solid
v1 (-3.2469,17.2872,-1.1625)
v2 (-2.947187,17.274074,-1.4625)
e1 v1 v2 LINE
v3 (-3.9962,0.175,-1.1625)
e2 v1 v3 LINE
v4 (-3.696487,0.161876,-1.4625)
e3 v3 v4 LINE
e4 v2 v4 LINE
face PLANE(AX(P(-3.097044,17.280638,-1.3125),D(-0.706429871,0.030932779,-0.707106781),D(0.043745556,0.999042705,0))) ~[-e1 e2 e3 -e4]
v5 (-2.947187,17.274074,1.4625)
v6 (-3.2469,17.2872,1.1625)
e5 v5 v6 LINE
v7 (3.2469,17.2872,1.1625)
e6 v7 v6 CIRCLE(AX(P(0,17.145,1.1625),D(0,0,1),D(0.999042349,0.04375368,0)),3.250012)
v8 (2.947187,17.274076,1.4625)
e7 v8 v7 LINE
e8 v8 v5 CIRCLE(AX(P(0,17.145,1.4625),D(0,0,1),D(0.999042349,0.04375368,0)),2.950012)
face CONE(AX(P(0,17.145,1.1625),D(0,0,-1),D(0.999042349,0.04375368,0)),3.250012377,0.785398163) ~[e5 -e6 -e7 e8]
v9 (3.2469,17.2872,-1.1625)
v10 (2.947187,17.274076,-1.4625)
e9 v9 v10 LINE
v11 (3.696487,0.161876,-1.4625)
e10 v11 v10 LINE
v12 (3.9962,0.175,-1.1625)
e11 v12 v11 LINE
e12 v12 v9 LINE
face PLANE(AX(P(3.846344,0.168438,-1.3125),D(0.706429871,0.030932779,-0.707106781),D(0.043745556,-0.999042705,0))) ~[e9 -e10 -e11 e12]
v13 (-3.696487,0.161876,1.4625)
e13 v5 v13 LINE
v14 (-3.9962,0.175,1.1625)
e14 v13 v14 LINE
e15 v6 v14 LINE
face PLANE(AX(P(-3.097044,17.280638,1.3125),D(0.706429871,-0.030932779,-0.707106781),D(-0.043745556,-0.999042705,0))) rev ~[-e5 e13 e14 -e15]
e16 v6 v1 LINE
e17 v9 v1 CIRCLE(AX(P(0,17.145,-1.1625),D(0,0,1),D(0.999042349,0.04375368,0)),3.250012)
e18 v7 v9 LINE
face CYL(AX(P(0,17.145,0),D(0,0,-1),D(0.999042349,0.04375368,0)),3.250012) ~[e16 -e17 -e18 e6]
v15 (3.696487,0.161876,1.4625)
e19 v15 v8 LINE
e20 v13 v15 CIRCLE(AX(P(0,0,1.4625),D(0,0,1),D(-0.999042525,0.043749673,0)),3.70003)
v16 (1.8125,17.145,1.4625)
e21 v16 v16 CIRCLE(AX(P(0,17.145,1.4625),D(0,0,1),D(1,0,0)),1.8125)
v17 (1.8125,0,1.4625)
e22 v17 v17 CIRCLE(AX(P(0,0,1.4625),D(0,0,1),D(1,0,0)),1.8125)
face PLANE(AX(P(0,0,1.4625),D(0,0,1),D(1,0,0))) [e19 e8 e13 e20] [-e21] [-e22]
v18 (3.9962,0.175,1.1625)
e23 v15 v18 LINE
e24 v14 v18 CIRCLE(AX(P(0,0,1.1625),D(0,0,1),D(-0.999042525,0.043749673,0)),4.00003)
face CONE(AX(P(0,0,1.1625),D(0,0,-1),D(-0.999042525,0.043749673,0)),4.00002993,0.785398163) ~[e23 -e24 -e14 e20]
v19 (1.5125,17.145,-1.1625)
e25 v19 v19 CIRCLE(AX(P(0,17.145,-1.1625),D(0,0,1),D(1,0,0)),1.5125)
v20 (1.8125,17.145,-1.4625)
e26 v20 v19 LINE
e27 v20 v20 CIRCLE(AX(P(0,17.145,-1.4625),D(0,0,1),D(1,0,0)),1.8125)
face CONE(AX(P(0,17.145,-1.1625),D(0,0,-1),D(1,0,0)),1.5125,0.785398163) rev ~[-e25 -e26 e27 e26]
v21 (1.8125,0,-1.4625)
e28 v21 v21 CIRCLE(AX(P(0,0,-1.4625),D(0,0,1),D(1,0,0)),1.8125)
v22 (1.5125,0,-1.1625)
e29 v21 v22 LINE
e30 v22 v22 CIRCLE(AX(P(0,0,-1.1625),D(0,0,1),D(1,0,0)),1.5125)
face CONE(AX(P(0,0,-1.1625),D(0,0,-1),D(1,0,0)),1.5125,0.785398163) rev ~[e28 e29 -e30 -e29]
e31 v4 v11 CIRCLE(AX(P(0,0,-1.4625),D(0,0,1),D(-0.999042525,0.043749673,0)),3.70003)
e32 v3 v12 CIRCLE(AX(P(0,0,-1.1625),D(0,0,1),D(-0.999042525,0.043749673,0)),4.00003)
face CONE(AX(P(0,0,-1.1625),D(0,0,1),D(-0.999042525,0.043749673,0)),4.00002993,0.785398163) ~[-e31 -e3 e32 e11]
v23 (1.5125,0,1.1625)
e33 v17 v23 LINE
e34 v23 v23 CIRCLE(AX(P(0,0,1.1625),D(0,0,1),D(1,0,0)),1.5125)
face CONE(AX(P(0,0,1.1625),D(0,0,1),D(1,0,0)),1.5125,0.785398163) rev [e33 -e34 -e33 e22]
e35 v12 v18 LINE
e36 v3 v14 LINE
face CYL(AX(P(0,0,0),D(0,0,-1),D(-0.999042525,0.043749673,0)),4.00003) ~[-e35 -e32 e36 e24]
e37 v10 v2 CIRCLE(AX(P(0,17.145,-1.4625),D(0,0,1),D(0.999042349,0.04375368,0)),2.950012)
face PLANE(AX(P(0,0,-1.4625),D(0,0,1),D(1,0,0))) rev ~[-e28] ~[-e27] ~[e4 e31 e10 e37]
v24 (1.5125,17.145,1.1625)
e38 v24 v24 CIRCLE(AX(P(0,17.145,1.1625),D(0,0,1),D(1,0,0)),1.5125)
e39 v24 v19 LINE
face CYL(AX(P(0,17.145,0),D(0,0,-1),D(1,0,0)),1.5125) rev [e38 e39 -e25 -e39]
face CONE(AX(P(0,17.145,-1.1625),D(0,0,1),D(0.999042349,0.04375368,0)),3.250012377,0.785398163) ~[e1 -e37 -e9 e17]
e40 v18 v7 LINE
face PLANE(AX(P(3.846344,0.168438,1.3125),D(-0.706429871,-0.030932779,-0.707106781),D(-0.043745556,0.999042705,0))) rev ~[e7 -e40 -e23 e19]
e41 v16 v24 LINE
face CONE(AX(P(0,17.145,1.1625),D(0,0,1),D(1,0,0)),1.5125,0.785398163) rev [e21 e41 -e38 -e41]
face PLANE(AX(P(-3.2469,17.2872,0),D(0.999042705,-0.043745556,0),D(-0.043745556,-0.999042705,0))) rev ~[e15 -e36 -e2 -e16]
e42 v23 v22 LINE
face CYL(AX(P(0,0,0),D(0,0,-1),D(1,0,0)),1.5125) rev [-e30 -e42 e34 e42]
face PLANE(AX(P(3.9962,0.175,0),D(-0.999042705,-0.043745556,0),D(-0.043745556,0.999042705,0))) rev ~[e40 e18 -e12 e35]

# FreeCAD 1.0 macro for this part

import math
import FreeCAD as App
import Part
import Sketcher


def edges_at(feature, points):
    """Names of the edges that pass closest to the given points."""
    edges = feature.Shape.Edges
    near = lambda p: min(range(len(edges)), key=lambda i: edges[i].distToShape(Part.Vertex(*p))[0])
    return sorted({f"Edge{near(p) + 1}" for p in points})

doc = App.newDocument("Part")
body = doc.addObject("PartDesign::Body", "Body")

sketch1 = body.newObject("Sketcher::SketchObject", "Sketch")
sketch1.AttachmentSupport = (doc.getObject("XY_Plane"), [""])
sketch1.MapMode = "FlatFace"
sketch1.addGeometry([
    Part.LineSegment(App.Vector(-3.2, 17.3, 0), App.Vector(-4, 0.2, 0)),
    Part.ArcOfCircle(Part.Circle(App.Vector(0, 0, 0), App.Vector(0, 0, 1), 4), math.radians(177), math.radians(363)),
    Part.LineSegment(App.Vector(4, 0.2, 0), App.Vector(3.2, 17.3, 0)),
    Part.ArcOfCircle(Part.Circle(App.Vector(0, 17.1, 0), App.Vector(0, 0, 1), 3.3), math.radians(3), math.radians(177)),
    Part.Circle(App.Vector(0, 0, 0), App.Vector(0, 0, 1), 1.5),
    Part.Circle(App.Vector(0, 17.1, 0), App.Vector(0, 0, 1), 1.5),
], False)
sketch1.addConstraint([
    Sketcher.Constraint("Tangent", 0, 2, 1, 1),
    Sketcher.Constraint("Tangent", 1, 2, 2, 1),
    Sketcher.Constraint("Tangent", 2, 2, 3, 1),
    Sketcher.Constraint("Tangent", 3, 2, 0, 1),
    Sketcher.Constraint("Coincident", 1, 3, -1, 1),
    Sketcher.Constraint("Coincident", 4, 3, -1, 1),
    Sketcher.Constraint("Coincident", 5, 3, 3, 3),
    Sketcher.Constraint("Equal", 4, 5),
    Sketcher.Constraint("PointOnObject", 3, 3, -2),
    Sketcher.Constraint("Radius", 1, 4.0),
    Sketcher.Constraint("Radius", 3, 3.25),
    Sketcher.Constraint("Diameter", 4, 3.025),
    Sketcher.Constraint("DistanceY", -1, 1, 3, 3, 17.145),
])
pad1 = body.newObject("PartDesign::Pad", "Pad")
pad1.Profile = sketch1
pad1.Length = 2.925
pad1.Midplane = True
doc.recompute()

chamfer = body.newObject("PartDesign::Chamfer", "Chamfer")
chamfer.Base = (pad1, edges_at(pad1, [
    (3.622, 8.731, -1.462),
    (0, -4, -1.462),
    (-3.622, 8.731, -1.462),
    (0, 20.395, -1.462),
    (-1.512, 17.145, -1.462),
    (-1.512, 17.145, 1.462),
    (3.622, 8.731, 1.462),
    (0, 20.395, 1.462),
    (-3.622, 8.731, 1.462),
    (0, -4, 1.462),
    (-1.512, 0, -1.462),
    (-1.512, 0, 1.462),
]))
chamfer.Size = 0.3

doc.recompute()
